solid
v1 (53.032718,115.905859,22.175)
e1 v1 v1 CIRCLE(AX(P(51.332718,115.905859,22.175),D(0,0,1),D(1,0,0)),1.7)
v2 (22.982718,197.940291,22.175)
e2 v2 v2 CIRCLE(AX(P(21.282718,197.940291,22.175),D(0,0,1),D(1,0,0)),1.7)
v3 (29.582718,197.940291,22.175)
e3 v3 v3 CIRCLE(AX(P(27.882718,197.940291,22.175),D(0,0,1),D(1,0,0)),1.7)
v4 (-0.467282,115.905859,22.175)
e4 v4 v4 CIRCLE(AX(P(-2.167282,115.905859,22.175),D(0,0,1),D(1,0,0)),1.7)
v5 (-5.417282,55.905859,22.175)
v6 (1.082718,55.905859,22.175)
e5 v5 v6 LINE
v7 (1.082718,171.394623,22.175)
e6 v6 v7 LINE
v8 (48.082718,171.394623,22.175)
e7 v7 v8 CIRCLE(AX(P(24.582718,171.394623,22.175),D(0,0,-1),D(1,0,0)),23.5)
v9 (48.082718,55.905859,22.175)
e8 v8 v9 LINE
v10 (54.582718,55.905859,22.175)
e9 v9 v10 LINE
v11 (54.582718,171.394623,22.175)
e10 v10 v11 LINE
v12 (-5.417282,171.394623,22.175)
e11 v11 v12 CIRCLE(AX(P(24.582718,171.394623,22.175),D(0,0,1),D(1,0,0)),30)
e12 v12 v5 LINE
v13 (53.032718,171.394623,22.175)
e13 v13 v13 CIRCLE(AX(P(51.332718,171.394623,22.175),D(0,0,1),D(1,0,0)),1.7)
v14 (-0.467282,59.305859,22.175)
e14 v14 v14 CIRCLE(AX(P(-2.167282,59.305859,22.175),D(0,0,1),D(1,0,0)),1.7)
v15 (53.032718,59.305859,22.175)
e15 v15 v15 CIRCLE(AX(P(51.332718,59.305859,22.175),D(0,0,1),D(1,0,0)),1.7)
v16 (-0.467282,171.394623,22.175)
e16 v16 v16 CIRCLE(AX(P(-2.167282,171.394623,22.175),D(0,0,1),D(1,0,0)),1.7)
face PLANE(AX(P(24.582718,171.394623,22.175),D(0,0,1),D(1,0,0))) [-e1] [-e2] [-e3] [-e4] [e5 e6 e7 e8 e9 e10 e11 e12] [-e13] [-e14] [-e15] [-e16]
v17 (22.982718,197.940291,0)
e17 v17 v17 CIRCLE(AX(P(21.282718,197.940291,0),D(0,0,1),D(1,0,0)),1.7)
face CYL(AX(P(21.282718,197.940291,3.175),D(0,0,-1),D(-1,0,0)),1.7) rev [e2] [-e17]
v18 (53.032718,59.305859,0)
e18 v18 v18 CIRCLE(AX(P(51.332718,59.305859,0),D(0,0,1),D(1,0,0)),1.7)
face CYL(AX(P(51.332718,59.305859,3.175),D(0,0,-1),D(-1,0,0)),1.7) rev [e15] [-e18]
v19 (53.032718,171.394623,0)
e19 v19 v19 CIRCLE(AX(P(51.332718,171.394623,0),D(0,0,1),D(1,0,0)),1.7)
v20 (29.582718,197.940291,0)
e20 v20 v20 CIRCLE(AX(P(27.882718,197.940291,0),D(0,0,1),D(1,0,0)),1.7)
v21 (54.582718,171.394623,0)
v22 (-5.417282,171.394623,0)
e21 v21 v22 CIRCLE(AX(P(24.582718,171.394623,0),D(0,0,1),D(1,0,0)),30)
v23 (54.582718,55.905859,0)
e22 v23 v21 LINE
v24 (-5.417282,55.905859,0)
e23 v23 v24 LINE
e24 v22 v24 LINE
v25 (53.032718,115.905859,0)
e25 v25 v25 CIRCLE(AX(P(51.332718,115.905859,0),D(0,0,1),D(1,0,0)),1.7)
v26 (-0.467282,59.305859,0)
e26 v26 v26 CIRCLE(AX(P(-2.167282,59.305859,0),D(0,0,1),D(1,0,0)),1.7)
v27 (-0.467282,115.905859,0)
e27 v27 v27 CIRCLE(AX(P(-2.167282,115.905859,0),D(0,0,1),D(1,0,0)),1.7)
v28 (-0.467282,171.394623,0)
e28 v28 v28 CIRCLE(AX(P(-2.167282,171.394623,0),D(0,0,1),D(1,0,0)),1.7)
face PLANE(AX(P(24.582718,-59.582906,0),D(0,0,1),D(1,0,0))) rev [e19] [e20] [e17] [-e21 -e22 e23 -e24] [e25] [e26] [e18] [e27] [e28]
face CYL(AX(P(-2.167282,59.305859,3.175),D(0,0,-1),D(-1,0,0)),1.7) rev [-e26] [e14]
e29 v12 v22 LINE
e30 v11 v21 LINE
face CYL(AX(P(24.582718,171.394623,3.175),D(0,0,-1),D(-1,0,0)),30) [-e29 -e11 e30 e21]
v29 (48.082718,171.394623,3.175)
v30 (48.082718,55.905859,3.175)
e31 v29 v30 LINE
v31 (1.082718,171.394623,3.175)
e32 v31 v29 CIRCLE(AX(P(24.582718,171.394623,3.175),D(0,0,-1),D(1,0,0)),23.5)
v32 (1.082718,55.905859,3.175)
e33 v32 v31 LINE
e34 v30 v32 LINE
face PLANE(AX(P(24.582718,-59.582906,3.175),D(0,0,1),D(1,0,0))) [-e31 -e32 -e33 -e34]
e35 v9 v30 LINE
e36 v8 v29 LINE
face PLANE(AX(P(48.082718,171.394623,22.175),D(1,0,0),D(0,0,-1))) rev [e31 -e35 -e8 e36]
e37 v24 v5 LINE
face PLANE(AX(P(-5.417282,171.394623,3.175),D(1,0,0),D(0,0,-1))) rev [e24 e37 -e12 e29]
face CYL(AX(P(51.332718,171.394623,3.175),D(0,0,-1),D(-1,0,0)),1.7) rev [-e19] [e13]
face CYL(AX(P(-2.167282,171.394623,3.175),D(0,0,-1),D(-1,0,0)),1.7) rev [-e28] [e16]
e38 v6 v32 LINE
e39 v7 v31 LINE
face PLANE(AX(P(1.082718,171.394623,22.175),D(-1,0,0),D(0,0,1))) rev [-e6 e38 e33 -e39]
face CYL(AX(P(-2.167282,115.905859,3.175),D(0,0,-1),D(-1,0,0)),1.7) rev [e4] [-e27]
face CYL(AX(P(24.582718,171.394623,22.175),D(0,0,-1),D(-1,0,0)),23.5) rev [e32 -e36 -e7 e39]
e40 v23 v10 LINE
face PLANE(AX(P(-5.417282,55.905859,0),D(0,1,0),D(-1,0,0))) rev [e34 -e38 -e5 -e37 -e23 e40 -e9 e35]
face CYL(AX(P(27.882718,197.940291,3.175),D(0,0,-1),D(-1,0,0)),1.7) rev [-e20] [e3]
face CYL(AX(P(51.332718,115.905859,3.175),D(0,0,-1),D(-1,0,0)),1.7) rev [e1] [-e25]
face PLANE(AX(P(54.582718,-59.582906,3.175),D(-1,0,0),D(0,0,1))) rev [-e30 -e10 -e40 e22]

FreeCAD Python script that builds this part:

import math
import FreeCAD as App
import Part
import Sketcher
from FreeCAD import Vector


def add_polygon(sketch, points):
    """Adds a closed chain of lines whose ends are joined by coincident constraints."""
    first, n = sketch.GeometryCount, len(points)
    for a, b in zip(points, points[1:] + points[:1]):
        sketch.addGeometry(Part.LineSegment(App.Vector(*a, 0), App.Vector(*b, 0)), False)
    for i in range(n):
        sketch.addConstraint(Sketcher.Constraint("Coincident", first + i, 2, first + (i + 1) % n, 1))

doc = App.newDocument("Part")
params = doc.addObject("Spreadsheet::Sheet", "Params")
for row, (alias, value) in enumerate([
    ("sketch1_radius", "30 mm"),
    ("sketch1_diameter", "3.4 mm"),
    ("pad1_length", "3.175 mm"),
    ("sketch2_width", "60 mm"),
    ("sketch3_radius", "30 mm"),
    ("sketch3_diameter", "3.4 mm"),
    ("sketch3_radius2", "23.5 mm"),
    ("pad2_length", "19 mm"),
], start=1):
    params.set(f"A{row}", alias)
    params.set(f"B{row}", "=" + value)
    params.setAlias(f"B{row}", alias)

body = doc.addObject("PartDesign::Body", "Body")

# Sketch on XY plane
sketch1 = body.newObject("Sketcher::SketchObject", "Sketch")
sketch1.AttachmentSupport = (doc.getObject("XY_Plane"), [""])
sketch1.MapMode = "FlatFace"
sketch1.addGeometry([
    Part.LineSegment(Vector(54.582718, -59.582906, 0), Vector(54.582718, 171.394623, 0)),  # 0
    Part.ArcOfCircle(Part.Circle(Vector(24.582718, 171.394623, 0), Vector(0, 0, 1), 30), math.radians(0), math.radians(180)),  # 1
    Part.LineSegment(Vector(-5.417282, 171.394623, 0), Vector(-5.417282, -59.582906, 0)),  # 2
    Part.ArcOfCircle(Part.Circle(Vector(24.582718, -59.582906, 0), Vector(0, 0, 1), 30), math.radians(180), math.radians(360)),  # 3
    Part.Circle(Vector(-2.167282, -59.582906, 0), Vector(0, 0, 1), 1.7),  # 4
    Part.Circle(Vector(5.667612, -78.498012, 0), Vector(0, 0, 1), 1.7),  # 5
    Part.Circle(Vector(-2.167282, -34.094141, 0), Vector(0, 0, 1), 1.7),  # 6
    Part.Circle(Vector(21.182718, -86.115951, 0), Vector(0, 0, 1), 1.7),  # 7
    Part.Circle(Vector(-2.167282, -4.094141, 0), Vector(0, 0, 1), 1.7),  # 8
    Part.Circle(Vector(-2.167282, 25.905859, 0), Vector(0, 0, 1), 1.7),  # 9
    Part.Circle(Vector(-2.167282, 52.505859, 0), Vector(0, 0, 1), 1.7),  # 10
    Part.Circle(Vector(27.982718, -86.115951, 0), Vector(0, 0, 1), 1.7),  # 11
    Part.Circle(Vector(43.497824, -78.498012, 0), Vector(0, 0, 1), 1.7),  # 12
    Part.Circle(Vector(51.332718, -59.582906, 0), Vector(0, 0, 1), 1.7),  # 13
    Part.Circle(Vector(51.332718, -34.094141, 0), Vector(0, 0, 1), 1.7),  # 14
    Part.Circle(Vector(51.332718, -4.094141, 0), Vector(0, 0, 1), 1.7),  # 15
    Part.Circle(Vector(51.332718, 25.905859, 0), Vector(0, 0, 1), 1.7),  # 16
    Part.Circle(Vector(51.332718, 52.505859, 0), Vector(0, 0, 1), 1.7),  # 17
    Part.Circle(Vector(-2.167282, 59.305859, 0), Vector(0, 0, 1), 1.7),  # 18
    Part.Circle(Vector(-2.167282, 115.905859, 0), Vector(0, 0, 1), 1.7),  # 19
    Part.Circle(Vector(-2.167282, 171.394623, 0), Vector(0, 0, 1), 1.7),  # 20
    Part.Circle(Vector(21.282718, 197.940291, 0), Vector(0, 0, 1), 1.7),  # 21
    Part.Circle(Vector(51.332718, 59.305859, 0), Vector(0, 0, 1), 1.7),  # 22
    Part.Circle(Vector(51.332718, 115.905859, 0), Vector(0, 0, 1), 1.7),  # 23
    Part.Circle(Vector(27.882718, 197.940291, 0), Vector(0, 0, 1), 1.7),  # 24
    Part.Circle(Vector(51.332718, 171.394623, 0), Vector(0, 0, 1), 1.7),  # 25
], False)
sketch1.addConstraint([
    Sketcher.Constraint("Tangent", 0, 2, 1, 1),
    Sketcher.Constraint("Tangent", 1, 2, 2, 1),
    Sketcher.Constraint("Tangent", 2, 2, 3, 1),
    Sketcher.Constraint("Tangent", 3, 2, 0, 1),
    Sketcher.Constraint("Vertical", 0),
    Sketcher.Constraint("Vertical", 2),
    Sketcher.Constraint("Equal", 4, 5),
    Sketcher.Constraint("Equal", 5, 6),
    Sketcher.Constraint("Equal", 6, 7),
    Sketcher.Constraint("Equal", 7, 8),
    Sketcher.Constraint("Equal", 8, 9),
    Sketcher.Constraint("Equal", 9, 10),
    Sketcher.Constraint("Equal", 10, 11),
    Sketcher.Constraint("Equal", 11, 12),
    Sketcher.Constraint("Equal", 12, 13),
    Sketcher.Constraint("Equal", 13, 14),
    Sketcher.Constraint("Equal", 14, 15),
    Sketcher.Constraint("Equal", 15, 16),
    Sketcher.Constraint("Equal", 16, 17),
    Sketcher.Constraint("Equal", 17, 18),
    Sketcher.Constraint("Equal", 18, 19),
    Sketcher.Constraint("Equal", 19, 20),
    Sketcher.Constraint("Equal", 20, 21),
    Sketcher.Constraint("Equal", 21, 22),
    Sketcher.Constraint("Equal", 22, 23),
    Sketcher.Constraint("Equal", 23, 24),
    Sketcher.Constraint("Equal", 24, 25),
    Sketcher.Constraint("Horizontal", 3, 3, 4, 3),
    Sketcher.Constraint("Horizontal", 7, 3, 11, 3),
    Sketcher.Constraint("Horizontal", 5, 3, 12, 3),
    Sketcher.Constraint("Horizontal", 4, 3, 13, 3),
    Sketcher.Constraint("Horizontal", 6, 3, 14, 3),
    Sketcher.Constraint("Horizontal", 8, 3, 15, 3),
    Sketcher.Constraint("Horizontal", 9, 3, 16, 3),
    Sketcher.Constraint("Horizontal", 10, 3, 17, 3),
    Sketcher.Constraint("Horizontal", 1, 3, 20, 3),
    Sketcher.Constraint("Horizontal", 18, 3, 22, 3),
    Sketcher.Constraint("Horizontal", 19, 3, 23, 3),
    Sketcher.Constraint("Horizontal", 21, 3, 24, 3),
    Sketcher.Constraint("Horizontal", 20, 3, 25, 3),
    Sketcher.Constraint("Vertical", 4, 3, 6, 3),
    Sketcher.Constraint("Vertical", 6, 3, 8, 3),
    Sketcher.Constraint("Vertical", 8, 3, 9, 3),
    Sketcher.Constraint("Vertical", 9, 3, 10, 3),
    Sketcher.Constraint("Vertical", 13, 3, 14, 3),
    Sketcher.Constraint("Vertical", 14, 3, 15, 3),
    Sketcher.Constraint("Vertical", 15, 3, 16, 3),
    Sketcher.Constraint("Vertical", 16, 3, 17, 3),
    Sketcher.Constraint("Vertical", 10, 3, 18, 3),
    Sketcher.Constraint("Vertical", 18, 3, 19, 3),
    Sketcher.Constraint("Vertical", 19, 3, 20, 3),
    Sketcher.Constraint("Vertical", 17, 3, 22, 3),
    Sketcher.Constraint("Vertical", 22, 3, 23, 3),
    Sketcher.Constraint("Vertical", 23, 3, 25, 3),
    Sketcher.Constraint("Radius", 1, 30.0),
    Sketcher.Constraint("Diameter", 4, 3.4),
    Sketcher.Constraint("DistanceY", 6, 3, 8, 3, 30.0),
    Sketcher.Constraint("DistanceY", 8, 3, 9, 3, 30.0),
    Sketcher.Constraint("DistanceY", 9, 3, 19, 3, 90.0),
    Sketcher.Constraint("DistanceX", 7, 3, 3, 3, 3.4),
    Sketcher.Constraint("DistanceY", 9, 3, 10, 3, 26.6),
    Sketcher.Constraint("DistanceX", 7, 3, 11, 3, 6.8),
    Sketcher.Constraint("DistanceX", 6, 3, 14, 3, 53.5),
    Sketcher.Constraint("DistanceY", 10, 3, 18, 3, 6.8),
    Sketcher.Constraint("DistanceX", 21, 3, 1, 3, 3.3),
    Sketcher.Constraint("DistanceX", 21, 3, 24, 3, 6.6),
    Sketcher.Constraint("DistanceX", 4, 3, 3, 3, 26.75),
    Sketcher.Constraint("DistanceY", 0, 1, 0, 2, 230.977529),
    Sketcher.Constraint("DistanceX", -1, 1, 5, 3, 5.667612),
    Sketcher.Constraint("DistanceY", 6, 3, -1, 1, 34.094141),
    Sketcher.Constraint("DistanceY", 7, 3, -1, 1, 86.115951),
    Sketcher.Constraint("DistanceY", -1, 1, 21, 3, 197.940291),
    Sketcher.Constraint("DistanceY", 5, 3, 6, 3, 44.403871),
    Sketcher.Constraint("DistanceY", 1, 3, 21, 3, 26.545668),
    Sketcher.Constraint("DistanceX", -1, 1, 1, 3, 24.582718),
    Sketcher.Constraint("DistanceX", -1, 1, 12, 3, 43.497824),
])
sketch1.setExpression("Constraints[54]", "Params.sketch1_radius")
sketch1.setExpression("Constraints[55]", "Params.sketch1_diameter")
pad1 = body.newObject("PartDesign::Pad", "Pad")
pad1.Profile = sketch1
pad1.setExpression("Length", "Params.pad1_length")

# Sketch on XY plane
sketch2 = body.newObject("Sketcher::SketchObject", "Sketch001")
sketch2.AttachmentSupport = (doc.getObject("XY_Plane"), [""])
sketch2.MapMode = "FlatFace"
sketch2.AttachmentOffset = App.Placement(Vector(0, 0, 3.175), App.Rotation())
add_polygon(sketch2, [(-5.417282, 55.905859), (-5.417282, -104.650062), (54.582718, -104.650062), (54.582718, 55.905859)])  # lines 0-3
sketch2.addConstraint([
    Sketcher.Constraint("Vertical", 0),
    Sketcher.Constraint("Horizontal", 1),
    Sketcher.Constraint("Vertical", 2),
    Sketcher.Constraint("Horizontal", 3),
    Sketcher.Constraint("DistanceX", 1, 1, 1, 2, 60.0),
    Sketcher.Constraint("DistanceY", 0, 2, 0, 1, 160.55592),
    Sketcher.Constraint("DistanceY", 0, 2, -1, 1, 104.650062),
    Sketcher.Constraint("DistanceX", 0, 2, -1, 1, 5.417282),
])
sketch2.setExpression("Constraints[8]", "Params.sketch2_width")
pocket1 = body.newObject("PartDesign::Pocket", "Pocket")
pocket1.Profile = sketch2
pocket1.Type = "ThroughAll"

# Sketch on XY plane
sketch3 = body.newObject("Sketcher::SketchObject", "Sketch002")
sketch3.AttachmentSupport = (doc.getObject("XY_Plane"), [""])
sketch3.MapMode = "FlatFace"
sketch3.AttachmentOffset = App.Placement(Vector(0, 0, 3.175), App.Rotation())
sketch3.addGeometry([
    Part.LineSegment(Vector(48.082718, 171.394623, 0), Vector(48.082718, 55.905859, 0)),  # 0
    Part.LineSegment(Vector(48.082718, 55.905859, 0), Vector(54.582718, 55.905859, 0)),  # 1
    Part.LineSegment(Vector(54.582718, 55.905859, 0), Vector(54.582718, 171.394623, 0)),  # 2
    Part.ArcOfCircle(Part.Circle(Vector(24.582718, 171.394623, 0), Vector(0, 0, 1), 30), math.radians(0), math.radians(180)),  # 3
    Part.LineSegment(Vector(-5.417282, 171.394623, 0), Vector(-5.417282, 55.905859, 0)),  # 4
    Part.LineSegment(Vector(-5.417282, 55.905859, 0), Vector(1.082718, 55.905859, 0)),  # 5
    Part.LineSegment(Vector(1.082718, 55.905859, 0), Vector(1.082718, 171.394623, 0)),  # 6
    Part.ArcOfCircle(Part.Circle(Vector(24.582718, 171.394623, 0), Vector(0, 0, 1), 23.5), math.radians(0), math.radians(180)),  # 7
    Part.Circle(Vector(-2.167282, 59.305859, 0), Vector(0, 0, 1), 1.7),  # 8
    Part.Circle(Vector(-2.167282, 115.905859, 0), Vector(0, 0, 1), 1.7),  # 9
    Part.Circle(Vector(51.332718, 59.305859, 0), Vector(0, 0, 1), 1.7),  # 10
    Part.Circle(Vector(51.332718, 115.905859, 0), Vector(0, 0, 1), 1.7),  # 11
    Part.Circle(Vector(-2.167282, 171.394623, 0), Vector(0, 0, 1), 1.7),  # 12
    Part.Circle(Vector(21.282718, 197.940291, 0), Vector(0, 0, 1), 1.7),  # 13
    Part.Circle(Vector(27.882718, 197.940291, 0), Vector(0, 0, 1), 1.7),  # 14
    Part.Circle(Vector(51.332718, 171.394623, 0), Vector(0, 0, 1), 1.7),  # 15
], False)
sketch3.addConstraint([
    Sketcher.Constraint("Coincident", 0, 2, 1, 1),
    Sketcher.Constraint("Coincident", 1, 2, 2, 1),
    Sketcher.Constraint("Tangent", 2, 2, 3, 1),
    Sketcher.Constraint("Tangent", 3, 2, 4, 1),
    Sketcher.Constraint("Coincident", 4, 2, 5, 1),
    Sketcher.Constraint("Coincident", 5, 2, 6, 1),
    Sketcher.Constraint("Tangent", 6, 2, 7, 2),
    Sketcher.Constraint("Tangent", 7, 1, 0, 1),
    Sketcher.Constraint("Vertical", 0),
    Sketcher.Constraint("Horizontal", 1),
    Sketcher.Constraint("Vertical", 2),
    Sketcher.Constraint("Vertical", 4),
    Sketcher.Constraint("Horizontal", 5),
    Sketcher.Constraint("Vertical", 6),
    Sketcher.Constraint("Coincident", 7, 3, 3, 3),
    Sketcher.Constraint("Equal", 8, 9),
    Sketcher.Constraint("Equal", 9, 10),
    Sketcher.Constraint("Equal", 10, 11),
    Sketcher.Constraint("Equal", 11, 12),
    Sketcher.Constraint("Equal", 12, 13),
    Sketcher.Constraint("Equal", 13, 14),
    Sketcher.Constraint("Equal", 14, 15),
    Sketcher.Constraint("Horizontal", 8, 3, 10, 3),
    Sketcher.Constraint("Horizontal", 9, 3, 11, 3),
    Sketcher.Constraint("Horizontal", 7, 3, 12, 3),
    Sketcher.Constraint("Horizontal", 13, 3, 14, 3),
    Sketcher.Constraint("Horizontal", 12, 3, 15, 3),
    Sketcher.Constraint("Horizontal", 1, 2, 4, 2),
    Sketcher.Constraint("Vertical", 8, 3, 9, 3),
    Sketcher.Constraint("Vertical", 10, 3, 11, 3),
    Sketcher.Constraint("Vertical", 9, 3, 12, 3),
    Sketcher.Constraint("Vertical", 11, 3, 15, 3),
    Sketcher.Constraint("Radius", 3, 30.0),
    Sketcher.Constraint("Diameter", 8, 3.4),
    Sketcher.Constraint("Radius", 7, 23.5),
    Sketcher.Constraint("DistanceY", 0, 2, 11, 3, 60.0),
    Sketcher.Constraint("DistanceY", 8, 3, 9, 3, 56.6),
    Sketcher.Constraint("DistanceX", 8, 3, 10, 3, 53.5),
    Sketcher.Constraint("DistanceX", 13, 3, 3, 3, 3.3),
    Sketcher.Constraint("DistanceX", 13, 3, 14, 3, 6.6),
    Sketcher.Constraint("DistanceX", 8, 3, 3, 3, 26.75),
    Sketcher.Constraint("DistanceY", 0, 2, 0, 1, 115.488764),
    Sketcher.Constraint("DistanceY", -1, 1, 8, 3, 59.305859),
    Sketcher.Constraint("DistanceY", -1, 1, 13, 3, 197.940291),
    Sketcher.Constraint("DistanceX", -1, 1, 3, 3, 24.582718),
])
sketch3.setExpression("Constraints[32]", "Params.sketch3_radius")
sketch3.setExpression("Constraints[33]", "Params.sketch3_diameter")
sketch3.setExpression("Constraints[34]", "Params.sketch3_radius2")
pad2 = body.newObject("PartDesign::Pad", "Pad001")
pad2.Profile = sketch3
pad2.setExpression("Length", "Params.pad2_length")

doc.recompute()
